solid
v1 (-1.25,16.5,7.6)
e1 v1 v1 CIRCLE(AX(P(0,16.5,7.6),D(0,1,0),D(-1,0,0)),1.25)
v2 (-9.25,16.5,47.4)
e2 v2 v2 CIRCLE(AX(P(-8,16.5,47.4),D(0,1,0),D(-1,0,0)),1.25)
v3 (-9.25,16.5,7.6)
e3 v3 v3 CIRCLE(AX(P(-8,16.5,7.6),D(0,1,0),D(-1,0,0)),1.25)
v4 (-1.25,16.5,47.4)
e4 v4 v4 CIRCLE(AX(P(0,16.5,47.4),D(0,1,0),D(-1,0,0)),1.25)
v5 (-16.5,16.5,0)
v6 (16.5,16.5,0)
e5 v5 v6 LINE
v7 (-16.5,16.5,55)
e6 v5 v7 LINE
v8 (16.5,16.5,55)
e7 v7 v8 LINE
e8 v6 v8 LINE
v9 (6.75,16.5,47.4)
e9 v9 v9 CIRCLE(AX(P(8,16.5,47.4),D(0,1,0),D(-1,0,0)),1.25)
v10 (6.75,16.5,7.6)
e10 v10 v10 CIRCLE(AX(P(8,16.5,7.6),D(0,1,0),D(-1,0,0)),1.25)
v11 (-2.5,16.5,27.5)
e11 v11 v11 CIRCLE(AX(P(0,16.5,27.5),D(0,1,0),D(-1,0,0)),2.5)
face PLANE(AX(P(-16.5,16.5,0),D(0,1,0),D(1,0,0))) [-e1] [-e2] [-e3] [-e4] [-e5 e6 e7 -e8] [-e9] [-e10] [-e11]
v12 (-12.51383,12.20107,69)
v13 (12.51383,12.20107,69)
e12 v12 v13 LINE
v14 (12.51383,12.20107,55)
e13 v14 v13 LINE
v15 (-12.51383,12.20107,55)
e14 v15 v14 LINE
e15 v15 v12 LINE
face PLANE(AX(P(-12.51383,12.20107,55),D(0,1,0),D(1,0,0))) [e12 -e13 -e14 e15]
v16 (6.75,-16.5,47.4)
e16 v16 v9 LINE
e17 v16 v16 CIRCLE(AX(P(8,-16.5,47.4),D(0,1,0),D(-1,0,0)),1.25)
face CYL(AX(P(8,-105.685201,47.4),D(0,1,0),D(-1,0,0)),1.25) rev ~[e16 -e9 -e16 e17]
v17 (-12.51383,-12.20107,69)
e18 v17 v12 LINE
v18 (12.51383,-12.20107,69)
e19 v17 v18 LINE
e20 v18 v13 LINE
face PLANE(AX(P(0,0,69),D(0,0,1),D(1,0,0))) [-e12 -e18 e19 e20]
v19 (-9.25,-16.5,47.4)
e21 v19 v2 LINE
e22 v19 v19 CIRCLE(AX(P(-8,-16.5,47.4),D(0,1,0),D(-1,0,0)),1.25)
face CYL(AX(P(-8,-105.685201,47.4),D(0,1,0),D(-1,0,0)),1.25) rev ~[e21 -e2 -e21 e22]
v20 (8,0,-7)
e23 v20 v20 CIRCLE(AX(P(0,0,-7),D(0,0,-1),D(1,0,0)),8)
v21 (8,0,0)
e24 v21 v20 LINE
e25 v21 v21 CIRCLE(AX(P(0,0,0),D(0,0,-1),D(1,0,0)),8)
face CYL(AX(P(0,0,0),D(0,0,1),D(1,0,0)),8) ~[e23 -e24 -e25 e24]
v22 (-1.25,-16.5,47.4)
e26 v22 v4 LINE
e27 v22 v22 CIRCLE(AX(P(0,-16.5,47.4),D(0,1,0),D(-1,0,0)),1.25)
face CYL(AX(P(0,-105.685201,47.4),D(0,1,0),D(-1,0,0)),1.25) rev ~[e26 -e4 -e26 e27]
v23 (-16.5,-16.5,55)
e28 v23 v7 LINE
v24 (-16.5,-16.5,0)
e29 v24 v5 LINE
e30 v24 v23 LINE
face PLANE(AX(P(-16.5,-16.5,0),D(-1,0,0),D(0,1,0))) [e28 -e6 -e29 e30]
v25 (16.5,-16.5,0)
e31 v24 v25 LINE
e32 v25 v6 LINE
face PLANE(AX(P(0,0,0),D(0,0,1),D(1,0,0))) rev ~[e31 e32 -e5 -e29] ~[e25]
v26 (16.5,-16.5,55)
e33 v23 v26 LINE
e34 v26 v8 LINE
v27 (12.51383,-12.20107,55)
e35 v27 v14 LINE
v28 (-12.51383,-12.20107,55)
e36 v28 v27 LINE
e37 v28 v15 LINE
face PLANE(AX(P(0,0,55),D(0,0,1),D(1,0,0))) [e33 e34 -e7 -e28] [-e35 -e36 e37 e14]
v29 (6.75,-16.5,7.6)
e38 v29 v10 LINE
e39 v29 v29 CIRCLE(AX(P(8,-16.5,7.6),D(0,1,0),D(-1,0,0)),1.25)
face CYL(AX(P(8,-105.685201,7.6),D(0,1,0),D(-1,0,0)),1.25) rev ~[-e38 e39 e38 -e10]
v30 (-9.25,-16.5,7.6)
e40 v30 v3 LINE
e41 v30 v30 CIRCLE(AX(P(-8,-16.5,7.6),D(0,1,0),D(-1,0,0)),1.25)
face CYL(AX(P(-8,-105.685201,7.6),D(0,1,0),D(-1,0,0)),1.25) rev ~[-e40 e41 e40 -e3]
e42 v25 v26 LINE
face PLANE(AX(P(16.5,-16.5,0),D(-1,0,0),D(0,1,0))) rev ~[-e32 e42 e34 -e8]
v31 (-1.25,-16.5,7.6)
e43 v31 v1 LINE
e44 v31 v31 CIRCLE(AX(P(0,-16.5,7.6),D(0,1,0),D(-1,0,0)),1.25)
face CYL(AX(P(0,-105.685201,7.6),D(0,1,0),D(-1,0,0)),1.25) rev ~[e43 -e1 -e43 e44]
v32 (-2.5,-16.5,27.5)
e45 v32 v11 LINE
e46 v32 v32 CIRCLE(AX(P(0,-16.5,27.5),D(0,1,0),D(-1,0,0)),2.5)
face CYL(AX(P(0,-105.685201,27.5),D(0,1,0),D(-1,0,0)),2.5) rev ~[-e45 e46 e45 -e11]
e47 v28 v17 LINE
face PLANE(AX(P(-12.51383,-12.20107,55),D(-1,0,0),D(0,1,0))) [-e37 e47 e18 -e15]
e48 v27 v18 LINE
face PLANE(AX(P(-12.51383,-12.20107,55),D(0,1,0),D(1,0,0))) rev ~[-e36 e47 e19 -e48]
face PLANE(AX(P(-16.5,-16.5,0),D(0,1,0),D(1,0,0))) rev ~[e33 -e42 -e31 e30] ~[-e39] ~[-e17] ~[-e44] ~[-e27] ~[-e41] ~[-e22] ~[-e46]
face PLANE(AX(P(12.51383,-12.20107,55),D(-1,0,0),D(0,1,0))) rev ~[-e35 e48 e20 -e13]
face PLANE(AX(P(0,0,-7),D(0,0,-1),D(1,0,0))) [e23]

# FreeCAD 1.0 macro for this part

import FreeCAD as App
import Part
import Sketcher
from FreeCAD import Vector
Q = App.Units.Quantity


def add_polygon(sketch, points):
    """Adds a closed chain of lines whose ends are joined by coincident constraints."""
    first, n = sketch.GeometryCount, len(points)
    for a, b in zip(points, points[1:] + points[:1]):
        sketch.addGeometry(Part.LineSegment(App.Vector(*a, 0), App.Vector(*b, 0)), False)
    for i in range(n):
        sketch.addConstraint(Sketcher.Constraint("Coincident", first + i, 2, first + (i + 1) % n, 1))

doc = App.newDocument("Part")
body = doc.addObject("PartDesign::Body", "Body")

sketch1 = doc.addObject("Sketcher::SketchObject", "Sketch")
body.addObject(sketch1)
sketch1.AttachmentSupport = (doc.XY_Plane, [""])
sketch1.MapMode = "FlatFace"
add_polygon(sketch1, [(-16.5, 16.5), (-16.5, -16.5), (16.5, -16.5), (16.5, 16.5)])
sketch1.addConstraint([
    Sketcher.Constraint("Vertical", 0),
    Sketcher.Constraint("Horizontal", 1),
    Sketcher.Constraint("Vertical", 2),
    Sketcher.Constraint("Horizontal", 3),
    Sketcher.Constraint("Symmetric", 0, 2, 2, 2, -1, 1),
    Sketcher.Constraint("Equal", 3, 0),
    Sketcher.Constraint("DistanceX", 1, 1, 1, 2, Q("33 mm")),
])
pad1 = doc.addObject("PartDesign::Pad", "Pad")
body.addObject(pad1)
pad1.Profile = sketch1
pad1.Length = 55

sketch2 = doc.addObject("Sketcher::SketchObject", "Sketch001")
body.addObject(sketch2)
sketch2.AttachmentSupport = (doc.XY_Plane, [""])
sketch2.MapMode = "FlatFace"
sketch2.AttachmentOffset = App.Placement(Vector(0, 0, 55), App.Rotation())
add_polygon(sketch2, [(-12.51383, 12.20107), (-12.51383, -12.20107), (12.51383, -12.20107), (12.51383, 12.20107)])
sketch2.addConstraint([
    Sketcher.Constraint("Vertical", 0),
    Sketcher.Constraint("Horizontal", 1),
    Sketcher.Constraint("Vertical", 2),
    Sketcher.Constraint("Horizontal", 3),
    Sketcher.Constraint("Symmetric", 0, 2, 2, 2, -1, 1),
    Sketcher.Constraint("DistanceX", 1, 1, 1, 2, Q("25.027661 mm")),
    Sketcher.Constraint("DistanceY", 0, 2, 0, 1, Q("24.40214 mm")),
])
pad2 = doc.addObject("PartDesign::Pad", "Pad001")
body.addObject(pad2)
pad2.Profile = sketch2
pad2.Length = 14

sketch3 = doc.addObject("Sketcher::SketchObject", "Sketch002")
body.addObject(sketch3)
sketch3.AttachmentSupport = (doc.XY_Plane, [""])
sketch3.MapMode = "FlatFace"
sketch3.addGeometry(Part.Circle(Vector(0, 0, 0), Vector(0, 0, 1), 8), False)
sketch3.addConstraint([
    Sketcher.Constraint("Coincident", 0, 3, -1, 1),
    Sketcher.Constraint("Diameter", 0, Q("16 mm")),
])
pad3 = doc.addObject("PartDesign::Pad", "Pad002")
body.addObject(pad3)
pad3.Profile = sketch3
pad3.Length = 7
pad3.Reversed = True

sketch4 = doc.addObject("Sketcher::SketchObject", "Sketch003")
body.addObject(sketch4)
sketch4.AttachmentSupport = (doc.XZ_Plane, [""])
sketch4.MapMode = "FlatFace"
sketch4.AttachmentOffset = App.Placement(Vector(0, 0, 16.5), App.Rotation())
sketch4.addGeometry([
    Part.Circle(Vector(-8, 47.4, 0), Vector(0, 0, 1), 1.25),
    Part.Circle(Vector(0, 47.4, 0), Vector(0, 0, 1), 1.25),
    Part.Circle(Vector(8, 47.4, 0), Vector(0, 0, 1), 1.25),
    Part.Circle(Vector(8, 7.6, 0), Vector(0, 0, 1), 1.25),
    Part.Circle(Vector(0, 7.6, 0), Vector(0, 0, 1), 1.25),
    Part.Circle(Vector(-8, 7.6, 0), Vector(0, 0, 1), 1.25),
], False)
sketch4.addConstraint([
    Sketcher.Constraint("Equal", 0, 1),
    Sketcher.Constraint("Equal", 1, 2),
    Sketcher.Constraint("Equal", 2, 3),
    Sketcher.Constraint("Equal", 3, 4),
    Sketcher.Constraint("Equal", 4, 5),
    Sketcher.Constraint("Symmetric", 0, 3, 2, 3, -2),
    Sketcher.Constraint("Symmetric", 3, 3, 5, 3, -2),
    Sketcher.Constraint("PointOnObject", 1, 3, -2),
    Sketcher.Constraint("PointOnObject", 4, 3, -2),
    Sketcher.Constraint("Horizontal", 0, 3, 1, 3),
    Sketcher.Constraint("Horizontal", 3, 3, 4, 3),
    Sketcher.Constraint("Vertical", 2, 3, 3, 3),
    Sketcher.Constraint("Diameter", 0, Q("2.5 mm")),
    Sketcher.Constraint("DistanceX", 0, 3, -1, 1, Q("8 mm")),
    Sketcher.Constraint("DistanceY", -1, 1, 0, 3, Q("47.4 mm")),
    Sketcher.Constraint("DistanceY", -1, 1, 3, 3, Q("7.6 mm")),
])
doc.recompute()
hole = doc.addObject("PartDesign::Hole", "Hole")
body.addObject(hole)
hole.Profile = sketch4
hole.ThreadType = "None"
hole.Diameter = 2.5
hole.DepthType = "ThroughAll"

sketch5 = doc.addObject("Sketcher::SketchObject", "Sketch004")
body.addObject(sketch5)
sketch5.AttachmentSupport = (doc.XZ_Plane, [""])
sketch5.MapMode = "FlatFace"
sketch5.AttachmentOffset = App.Placement(Vector(0, 0, 16.5), App.Rotation())
sketch5.addGeometry(Part.Circle(Vector(0, 27.5, 0), Vector(0, 0, 1), 2.5), False)
sketch5.addConstraint([
    Sketcher.Constraint("PointOnObject", 0, 3, -2),
    Sketcher.Constraint("Diameter", 0, Q("5 mm")),
    Sketcher.Constraint("DistanceY", -1, 1, 0, 3, Q("27.5 mm")),
])
doc.recompute()
hole2 = doc.addObject("PartDesign::Hole", "Hole001")
body.addObject(hole2)
hole2.Profile = sketch5
hole2.ThreadType = "None"
hole2.Diameter = 5
hole2.DepthType = "ThroughAll"

doc.recompute()
